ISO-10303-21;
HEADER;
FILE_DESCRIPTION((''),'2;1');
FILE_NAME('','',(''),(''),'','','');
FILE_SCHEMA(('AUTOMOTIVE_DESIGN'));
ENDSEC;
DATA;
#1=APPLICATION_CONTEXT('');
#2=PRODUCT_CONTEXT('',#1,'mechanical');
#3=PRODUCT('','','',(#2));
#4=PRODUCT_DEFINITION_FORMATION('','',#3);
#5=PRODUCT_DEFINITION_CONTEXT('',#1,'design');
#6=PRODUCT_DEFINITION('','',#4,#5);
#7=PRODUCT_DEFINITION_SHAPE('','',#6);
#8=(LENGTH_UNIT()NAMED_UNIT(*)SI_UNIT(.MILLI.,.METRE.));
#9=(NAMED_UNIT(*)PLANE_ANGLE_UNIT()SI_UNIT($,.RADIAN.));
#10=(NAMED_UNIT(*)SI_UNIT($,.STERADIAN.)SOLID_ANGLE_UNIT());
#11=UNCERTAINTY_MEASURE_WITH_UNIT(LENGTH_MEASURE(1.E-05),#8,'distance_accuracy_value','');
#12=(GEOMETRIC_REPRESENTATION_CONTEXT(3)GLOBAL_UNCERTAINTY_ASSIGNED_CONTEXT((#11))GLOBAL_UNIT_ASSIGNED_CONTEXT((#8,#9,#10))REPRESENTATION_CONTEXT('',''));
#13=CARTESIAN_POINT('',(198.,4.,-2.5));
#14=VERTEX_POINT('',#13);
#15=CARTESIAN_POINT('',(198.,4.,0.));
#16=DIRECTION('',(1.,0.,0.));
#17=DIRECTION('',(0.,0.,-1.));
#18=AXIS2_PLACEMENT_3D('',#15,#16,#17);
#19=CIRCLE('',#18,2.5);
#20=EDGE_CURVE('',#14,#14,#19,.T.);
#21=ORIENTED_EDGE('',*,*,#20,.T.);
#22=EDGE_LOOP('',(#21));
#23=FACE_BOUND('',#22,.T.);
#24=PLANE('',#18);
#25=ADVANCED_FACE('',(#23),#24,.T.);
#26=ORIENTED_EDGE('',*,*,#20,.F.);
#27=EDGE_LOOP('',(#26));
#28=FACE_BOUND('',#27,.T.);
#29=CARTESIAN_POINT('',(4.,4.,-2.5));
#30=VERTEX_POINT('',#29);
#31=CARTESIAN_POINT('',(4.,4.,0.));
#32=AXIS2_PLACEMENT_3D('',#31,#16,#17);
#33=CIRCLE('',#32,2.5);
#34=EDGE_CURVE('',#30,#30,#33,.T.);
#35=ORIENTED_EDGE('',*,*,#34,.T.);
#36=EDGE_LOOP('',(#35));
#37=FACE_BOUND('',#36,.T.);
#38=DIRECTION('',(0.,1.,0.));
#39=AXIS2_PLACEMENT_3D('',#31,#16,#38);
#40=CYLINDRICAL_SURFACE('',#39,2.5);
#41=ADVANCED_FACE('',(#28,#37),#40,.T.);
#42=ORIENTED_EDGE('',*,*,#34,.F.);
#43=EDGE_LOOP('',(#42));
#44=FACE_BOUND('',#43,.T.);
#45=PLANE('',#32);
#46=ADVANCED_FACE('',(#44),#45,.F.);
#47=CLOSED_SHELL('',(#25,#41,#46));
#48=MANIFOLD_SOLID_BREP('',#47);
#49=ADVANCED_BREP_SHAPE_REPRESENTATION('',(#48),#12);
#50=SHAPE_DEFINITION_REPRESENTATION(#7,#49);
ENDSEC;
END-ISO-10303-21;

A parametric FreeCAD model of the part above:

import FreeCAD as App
import Part
import Sketcher
from FreeCAD import Vector

doc = App.newDocument("Part")
body = doc.addObject("PartDesign::Body", "Body")

# Sketch on YZ plane
sketch1 = body.newObject("Sketcher::SketchObject", "Sketch")
sketch1.AttachmentSupport = (doc.getObject("YZ_Plane"), [""])
sketch1.MapMode = "FlatFace"
sketch1.AttachmentOffset = App.Placement(Vector(0, 0, 198), App.Rotation())
sketch1.addGeometry(Part.Circle(Vector(4, 0, 0), Vector(0, 0, 1), 2.5), False)
sketch1.addConstraint(Sketcher.Constraint("PointOnObject", 0, 3, -1))
sketch1.addConstraint(Sketcher.Constraint("Diameter", 0, 5.0))
sketch1.addConstraint(Sketcher.Constraint("DistanceX", -1, 1, 0, 3, 4.0))

# Sketch on XY plane
sketch2 = body.newObject("Sketcher::SketchObject", "Sketch001")
sketch2.AttachmentSupport = (doc.getObject("XY_Plane"), [""])
sketch2.MapMode = "FlatFace"
sketch2.addGeometry(Part.LineSegment(Vector(4, 4, 0), Vector(198, 4, 0)), False)
sketch2.addConstraint(Sketcher.Constraint("Horizontal", 0))
sketch2.addConstraint(Sketcher.Constraint("DistanceX", 0, 1, 0, 2, 194.0))
sketch2.addConstraint(Sketcher.Constraint("DistanceX", -1, 1, 0, 1, 4.0))
sketch2.addConstraint(Sketcher.Constraint("DistanceY", -1, 1, 0, 1, 4.0))
doc.recompute()

additivepipe = body.newObject("PartDesign::AdditivePipe", "AdditivePipe")
additivepipe.Profile = sketch1
additivepipe.Spine = (sketch2, ["Edge1"])

doc.recompute()
